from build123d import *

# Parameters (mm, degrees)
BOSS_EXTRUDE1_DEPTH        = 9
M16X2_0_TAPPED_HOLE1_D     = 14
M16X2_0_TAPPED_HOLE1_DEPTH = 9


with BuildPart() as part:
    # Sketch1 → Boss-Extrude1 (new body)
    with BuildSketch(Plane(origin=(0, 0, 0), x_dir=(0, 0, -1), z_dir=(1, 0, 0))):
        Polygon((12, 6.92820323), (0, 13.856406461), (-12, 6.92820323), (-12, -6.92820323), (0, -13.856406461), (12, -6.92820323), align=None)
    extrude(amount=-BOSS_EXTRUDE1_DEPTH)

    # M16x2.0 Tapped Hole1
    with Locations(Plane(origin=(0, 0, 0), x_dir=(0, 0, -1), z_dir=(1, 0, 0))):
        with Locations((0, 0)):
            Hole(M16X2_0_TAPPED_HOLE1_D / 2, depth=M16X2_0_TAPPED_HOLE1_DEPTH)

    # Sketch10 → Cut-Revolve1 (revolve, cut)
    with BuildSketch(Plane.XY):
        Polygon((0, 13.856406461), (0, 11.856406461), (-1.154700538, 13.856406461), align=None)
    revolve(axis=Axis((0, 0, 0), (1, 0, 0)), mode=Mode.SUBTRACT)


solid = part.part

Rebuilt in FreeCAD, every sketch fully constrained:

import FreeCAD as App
import Part
import Sketcher

V = App.Vector
Q = App.Units.Quantity

doc = App.newDocument("Part")
body = doc.addObject("PartDesign::Body", "Body")

sketch1 = doc.addObject("Sketcher::SketchObject", "Sketch")
body.addObject(sketch1)
sketch1.AttachmentSupport = (doc.YZ_Plane, [""])
sketch1.MapMode = "FlatFace"
sketch1.addGeometry([
    Part.LineSegment(V(7, -12, 0), V(14, 0, 0)),
    Part.LineSegment(V(14, 0, 0), V(7, 12, 0)),
    Part.LineSegment(V(7, 12, 0), V(-7, 12, 0)),
    Part.LineSegment(V(-7, 12, 0), V(-14, 0, 0)),
    Part.LineSegment(V(-14, 0, 0), V(-7, -12, 0)),
    Part.LineSegment(V(-7, -12, 0), V(7, -12, 0)),
], False)
sketch1.addConstraint([
    Sketcher.Constraint("Coincident", 0, 2, 1, 1),
    Sketcher.Constraint("Coincident", 1, 2, 2, 1),
    Sketcher.Constraint("Coincident", 2, 2, 3, 1),
    Sketcher.Constraint("Coincident", 3, 2, 4, 1),
    Sketcher.Constraint("Coincident", 4, 2, 5, 1),
    Sketcher.Constraint("Coincident", 5, 2, 0, 1),
    Sketcher.Constraint("Horizontal", 2),
    Sketcher.Constraint("Horizontal", 5),
    Sketcher.Constraint("Symmetric", 0, 2, 3, 2, -1, 1),
    Sketcher.Constraint("Symmetric", 1, 2, 4, 2, -1, 1),
    Sketcher.Constraint("PointOnObject", 0, 2, -1),
    Sketcher.Constraint("Parallel", 0, 3),
    Sketcher.Constraint("Vertical", 2, 2, 4, 2),
    Sketcher.Constraint("Angle", 0, Q("60 deg")),
    Sketcher.Constraint("DistanceY", -1, 1, 1, 2, Q("12 mm")),
    Sketcher.Constraint("DistanceX", 2, 2, 2, 1, Q("13.856406 mm")),
])
pad1 = doc.addObject("PartDesign::Pad", "Pad")
body.addObject(pad1)
pad1.Profile = sketch1
pad1.Length = 9
pad1.Reversed = True

sketch2 = doc.addObject("Sketcher::SketchObject", "Sketch001")
body.addObject(sketch2)
sketch2.AttachmentSupport = (doc.YZ_Plane, [""])
sketch2.MapMode = "FlatFace"
sketch2.addGeometry(Part.Circle(V(0, 0, 0), V(0, 0, 1), 7), False)
sketch2.addConstraint([
    Sketcher.Constraint("Coincident", 0, 3, -1, 1),
    Sketcher.Constraint("Diameter", 0, Q("14 mm")),
])
doc.recompute()
hole = doc.addObject("PartDesign::Hole", "Hole")
body.addObject(hole)
hole.Profile = sketch2
hole.ThreadType = "None"
hole.Diameter = 14
hole.DepthType = "Dimension"
hole.Depth = 9
hole.DrillPoint = "Flat"

sketch3 = doc.addObject("Sketcher::SketchObject", "Sketch002")
body.addObject(sketch3)
sketch3.AttachmentSupport = (doc.XY_Plane, [""])
sketch3.MapMode = "FlatFace"
sketch3.addGeometry([
    Part.LineSegment(V(0, 11.9, 0), V(0, 13.9, 0)),
    Part.LineSegment(V(0, 13.9, 0), V(-1.2, 13.9, 0)),
    Part.LineSegment(V(-1.2, 13.9, 0), V(0, 11.9, 0)),
], False)
sketch3.addConstraint([
    Sketcher.Constraint("Coincident", 0, 2, 1, 1),
    Sketcher.Constraint("Coincident", 1, 2, 2, 1),
    Sketcher.Constraint("Coincident", 2, 2, 0, 1),
    Sketcher.Constraint("Vertical", 0),
    Sketcher.Constraint("Horizontal", 1),
    Sketcher.Constraint("PointOnObject", 0, 2, -2),
    Sketcher.Constraint("DistanceY", 0, 1, 0, 2, Q("2 mm")),
    Sketcher.Constraint("Angle", 2, Q("-60 deg")),
    Sketcher.Constraint("DistanceY", -1, 1, 0, 2, Q("13.856406 mm")),
])
groove = doc.addObject("PartDesign::Groove", "Groove")
body.addObject(groove)
groove.Profile = sketch3
groove.ReferenceAxis = (sketch3, ["H_Axis"])
groove.Angle = 360

doc.recompute()
